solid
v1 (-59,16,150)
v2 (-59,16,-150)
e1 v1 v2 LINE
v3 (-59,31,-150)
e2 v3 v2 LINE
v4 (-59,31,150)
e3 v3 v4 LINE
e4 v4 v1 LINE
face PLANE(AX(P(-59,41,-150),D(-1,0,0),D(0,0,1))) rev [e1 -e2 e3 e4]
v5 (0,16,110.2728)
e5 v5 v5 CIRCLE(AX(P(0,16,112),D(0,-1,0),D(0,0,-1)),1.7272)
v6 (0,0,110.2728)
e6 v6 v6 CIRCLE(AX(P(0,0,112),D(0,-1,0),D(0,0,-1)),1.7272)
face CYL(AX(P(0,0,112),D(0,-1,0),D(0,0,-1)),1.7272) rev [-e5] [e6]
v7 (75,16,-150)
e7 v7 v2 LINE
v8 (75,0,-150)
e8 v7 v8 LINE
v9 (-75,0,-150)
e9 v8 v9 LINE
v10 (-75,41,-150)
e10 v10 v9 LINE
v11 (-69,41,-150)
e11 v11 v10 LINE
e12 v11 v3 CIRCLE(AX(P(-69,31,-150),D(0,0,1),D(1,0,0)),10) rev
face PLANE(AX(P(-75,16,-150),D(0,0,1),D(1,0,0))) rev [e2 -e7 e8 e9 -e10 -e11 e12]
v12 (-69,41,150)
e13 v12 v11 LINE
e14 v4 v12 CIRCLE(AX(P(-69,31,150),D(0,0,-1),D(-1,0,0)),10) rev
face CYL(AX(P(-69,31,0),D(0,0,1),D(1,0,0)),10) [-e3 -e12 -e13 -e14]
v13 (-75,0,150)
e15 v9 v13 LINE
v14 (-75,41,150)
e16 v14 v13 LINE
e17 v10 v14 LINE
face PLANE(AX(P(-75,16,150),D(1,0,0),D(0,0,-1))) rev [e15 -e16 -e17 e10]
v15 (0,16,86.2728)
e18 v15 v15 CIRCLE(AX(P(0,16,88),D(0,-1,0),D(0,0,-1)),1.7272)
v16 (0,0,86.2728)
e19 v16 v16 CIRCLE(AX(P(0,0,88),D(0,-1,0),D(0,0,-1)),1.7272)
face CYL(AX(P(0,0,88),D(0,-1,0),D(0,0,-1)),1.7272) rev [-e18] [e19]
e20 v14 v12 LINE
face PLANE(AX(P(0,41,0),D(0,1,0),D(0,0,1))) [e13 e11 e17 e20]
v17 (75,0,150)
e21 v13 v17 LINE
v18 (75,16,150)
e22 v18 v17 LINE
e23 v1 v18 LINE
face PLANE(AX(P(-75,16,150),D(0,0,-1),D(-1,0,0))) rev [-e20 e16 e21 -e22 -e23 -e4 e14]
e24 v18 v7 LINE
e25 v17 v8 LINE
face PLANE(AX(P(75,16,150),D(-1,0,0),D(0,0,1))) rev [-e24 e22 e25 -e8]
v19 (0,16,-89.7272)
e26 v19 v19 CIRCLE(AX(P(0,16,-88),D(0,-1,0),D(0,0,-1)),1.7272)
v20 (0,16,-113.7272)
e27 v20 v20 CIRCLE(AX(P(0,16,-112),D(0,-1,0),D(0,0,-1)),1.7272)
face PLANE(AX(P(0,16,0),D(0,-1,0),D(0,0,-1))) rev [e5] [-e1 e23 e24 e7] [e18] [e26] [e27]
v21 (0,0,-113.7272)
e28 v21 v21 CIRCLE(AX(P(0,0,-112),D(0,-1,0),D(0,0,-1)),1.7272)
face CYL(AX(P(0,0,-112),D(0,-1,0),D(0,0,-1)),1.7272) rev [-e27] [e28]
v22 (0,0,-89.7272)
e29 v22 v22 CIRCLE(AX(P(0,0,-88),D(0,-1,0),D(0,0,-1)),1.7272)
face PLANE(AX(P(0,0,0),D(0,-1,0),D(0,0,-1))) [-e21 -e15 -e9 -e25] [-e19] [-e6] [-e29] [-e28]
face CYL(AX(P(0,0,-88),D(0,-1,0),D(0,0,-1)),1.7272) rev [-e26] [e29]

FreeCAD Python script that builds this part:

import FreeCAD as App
import Part
import Sketcher

V = App.Vector
Q = App.Units.Quantity


def edges_at(feature, points):
    """Names of the edges that pass closest to the given points."""
    edges = feature.Shape.Edges
    near = lambda p: min(range(len(edges)), key=lambda i: edges[i].distToShape(Part.Vertex(*p))[0])
    return sorted({f"Edge{near(p) + 1}" for p in points})


def add_polygon(sketch, points):
    """Adds a closed chain of lines whose ends are joined by coincident constraints."""
    first, n = sketch.GeometryCount, len(points)
    for a, b in zip(points, points[1:] + points[:1]):
        sketch.addGeometry(Part.LineSegment(App.Vector(*a, 0), App.Vector(*b, 0)), False)
    for i in range(n):
        sketch.addConstraint(Sketcher.Constraint("Coincident", first + i, 2, first + (i + 1) % n, 1))

doc = App.newDocument("Part")
params = doc.addObject("Spreadsheet::Sheet", "Params")
for row, (alias, value) in enumerate([
    ("sketch1_width", "150 mm"),
    ("sketch1_height", "300 mm"),
    ("pad1_length", "16 mm"),
    ("sketch2_width", "16 mm"),
    ("sketch2_height", "300 mm"),
    ("pad2_length", "25 mm"),
    ("fillet_radius", "10 mm"),
    ("hole_diameter", "3.4544 mm"),
], start=1):
    params.set(f"A{row}", alias)
    params.set(f"B{row}", "=" + value)
    params.setAlias(f"B{row}", alias)

body = doc.addObject("PartDesign::Body", "Body")

sketch1 = body.newObject("Sketcher::SketchObject", "Sketch")
sketch1.AttachmentSupport = (doc.getObject("XZ_Plane"), [""])
sketch1.MapMode = "FlatFace"
add_polygon(sketch1, [(-75, -150), (-75, 150), (75, 150), (75, -150)])
sketch1.addConstraint([
    Sketcher.Constraint("Vertical", 0),
    Sketcher.Constraint("Horizontal", 1),
    Sketcher.Constraint("Vertical", 2),
    Sketcher.Constraint("Horizontal", 3),
    Sketcher.Constraint("Symmetric", 0, 2, 2, 2, -1, 1),
    Sketcher.Constraint("DistanceX", 1, 1, 1, 2, Q("150 mm")),
    Sketcher.Constraint("DistanceY", 0, 1, 0, 2, Q("300 mm")),
])
sketch1.setExpression("Constraints[9]", "Params.sketch1_width")
sketch1.setExpression("Constraints[10]", "Params.sketch1_height")
pad1 = body.newObject("PartDesign::Pad", "Pad")
pad1.Profile = sketch1
pad1.setExpression("Length", "Params.pad1_length")
pad1.Reversed = True

sketch2 = body.newObject("Sketcher::SketchObject", "Sketch001")
sketch2.AttachmentSupport = (doc.getObject("XZ_Plane"), [""])
sketch2.MapMode = "FlatFace"
sketch2.AttachmentOffset = App.Placement(V(0, 0, -16), App.Rotation())
add_polygon(sketch2, [(-75, -150), (-75, 150), (-59, 150), (-59, -150)])
sketch2.addConstraint([
    Sketcher.Constraint("Vertical", 0),
    Sketcher.Constraint("Horizontal", 1),
    Sketcher.Constraint("Vertical", 2),
    Sketcher.Constraint("Horizontal", 3),
    Sketcher.Constraint("DistanceX", 1, 1, 1, 2, Q("16 mm")),
    Sketcher.Constraint("DistanceY", 0, 1, 0, 2, Q("300 mm")),
    Sketcher.Constraint("DistanceX", 0, 2, -1, 1, Q("75 mm")),
    Sketcher.Constraint("DistanceY", -1, 1, 0, 2, Q("150 mm")),
])
sketch2.setExpression("Constraints[8]", "Params.sketch2_width")
sketch2.setExpression("Constraints[9]", "Params.sketch2_height")
pad2 = body.newObject("PartDesign::Pad", "Pad001")
pad2.Profile = sketch2
pad2.setExpression("Length", "Params.pad2_length")
pad2.Reversed = True
doc.recompute()

fillet = body.newObject("PartDesign::Fillet", "Fillet")
fillet.Base = (pad2, edges_at(pad2, [(-59, 41, 0)]))
fillet.setExpression("Radius", "Params.fillet_radius")

sketch3 = body.newObject("Sketcher::SketchObject", "Sketch002")
sketch3.AttachmentSupport = (doc.getObject("XZ_Plane"), [""])
sketch3.MapMode = "FlatFace"
sketch3.addGeometry([
    Part.Circle(V(0, -112, 0), V(0, 0, 1), 1.7272),
    Part.Circle(V(0, -88, 0), V(0, 0, 1), 1.7272),
], False)
sketch3.addConstraint([
    Sketcher.Constraint("Equal", 0, 1),
    Sketcher.Constraint("PointOnObject", 0, 3, -2),
    Sketcher.Constraint("PointOnObject", 1, 3, -2),
    Sketcher.Constraint("DistanceY", 0, 3, -1, 1, Q("112 mm")),
    Sketcher.Constraint("DistanceY", 1, 3, -1, 1, Q("88 mm")),
    Sketcher.Constraint("Diameter", 0, Q("3.4544 mm")),
])
doc.recompute()
hole = body.newObject("PartDesign::Hole", "Hole")
hole.Profile = sketch3
hole.ThreadType = "None"
hole.setExpression("Diameter", "Params.hole_diameter")
hole.DepthType = "ThroughAll"
doc.recompute()

mirrored = body.newObject("PartDesign::Mirrored", "Mirrored")
mirrored.Originals = [hole]
mirrored.MirrorPlane = (doc.getObject("XY_Plane"), [""])
body.Tip = mirrored

doc.recompute()
